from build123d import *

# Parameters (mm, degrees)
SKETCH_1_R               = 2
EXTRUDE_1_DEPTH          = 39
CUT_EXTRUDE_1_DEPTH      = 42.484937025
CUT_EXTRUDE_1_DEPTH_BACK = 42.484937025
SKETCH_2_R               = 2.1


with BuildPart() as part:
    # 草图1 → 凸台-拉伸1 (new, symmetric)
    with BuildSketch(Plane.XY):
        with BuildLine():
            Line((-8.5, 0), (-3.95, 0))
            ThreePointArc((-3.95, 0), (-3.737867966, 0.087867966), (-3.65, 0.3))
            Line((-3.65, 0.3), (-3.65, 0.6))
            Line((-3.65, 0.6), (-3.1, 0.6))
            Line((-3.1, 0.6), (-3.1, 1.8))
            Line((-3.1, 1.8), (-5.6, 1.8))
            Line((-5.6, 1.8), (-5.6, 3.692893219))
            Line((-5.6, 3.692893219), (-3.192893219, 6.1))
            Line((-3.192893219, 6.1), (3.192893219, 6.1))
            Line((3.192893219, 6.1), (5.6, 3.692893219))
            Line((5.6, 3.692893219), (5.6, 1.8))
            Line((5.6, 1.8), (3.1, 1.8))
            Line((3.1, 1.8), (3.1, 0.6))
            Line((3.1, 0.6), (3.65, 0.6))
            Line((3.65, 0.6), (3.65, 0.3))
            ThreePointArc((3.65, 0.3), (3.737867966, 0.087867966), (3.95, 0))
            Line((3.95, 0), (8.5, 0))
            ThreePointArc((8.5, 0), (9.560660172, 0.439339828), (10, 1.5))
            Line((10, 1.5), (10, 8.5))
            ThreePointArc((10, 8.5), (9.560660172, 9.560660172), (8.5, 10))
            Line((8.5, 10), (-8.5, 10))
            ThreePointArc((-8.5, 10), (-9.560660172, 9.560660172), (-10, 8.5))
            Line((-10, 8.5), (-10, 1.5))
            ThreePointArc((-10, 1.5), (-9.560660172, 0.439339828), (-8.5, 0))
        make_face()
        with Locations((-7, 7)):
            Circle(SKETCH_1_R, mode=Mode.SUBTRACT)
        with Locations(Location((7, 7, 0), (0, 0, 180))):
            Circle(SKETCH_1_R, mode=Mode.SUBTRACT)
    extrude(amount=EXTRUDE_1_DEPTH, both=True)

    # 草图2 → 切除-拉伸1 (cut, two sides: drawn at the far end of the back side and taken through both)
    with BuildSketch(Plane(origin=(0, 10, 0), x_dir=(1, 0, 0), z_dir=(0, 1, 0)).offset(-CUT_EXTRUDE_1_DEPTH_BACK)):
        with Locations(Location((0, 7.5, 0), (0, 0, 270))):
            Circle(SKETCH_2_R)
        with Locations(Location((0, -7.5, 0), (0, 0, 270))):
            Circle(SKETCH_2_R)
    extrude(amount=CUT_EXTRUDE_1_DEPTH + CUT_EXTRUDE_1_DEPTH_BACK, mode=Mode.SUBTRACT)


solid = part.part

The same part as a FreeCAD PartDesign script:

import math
import FreeCAD as App
import Part
import Sketcher
from FreeCAD import Vector
Q = App.Units.Quantity

doc = App.newDocument("Part")
body = doc.addObject("PartDesign::Body", "Body")

sketch1 = body.newObject("Sketcher::SketchObject", "Sketch")
sketch1.AttachmentSupport = (doc.getObject("XY_Plane"), [""])
sketch1.MapMode = "FlatFace"
sketch1.addGeometry(Part.LineSegment(Vector(-8.5, 0, 0), Vector(-3.95, 0, 0)), False)
sketch1.addGeometry(Part.ArcOfCircle(Part.Circle(Vector(-3.95, 0.3, 0), Vector(0, 0, 1), 0.3), math.radians(-90), math.radians(0)), False)
sketch1.addGeometry(Part.LineSegment(Vector(-3.65, 0.3, 0), Vector(-3.65, 0.6, 0)), False)
sketch1.addGeometry(Part.LineSegment(Vector(-3.65, 0.6, 0), Vector(-3.1, 0.6, 0)), False)
sketch1.addGeometry(Part.LineSegment(Vector(-3.1, 0.6, 0), Vector(-3.1, 1.8, 0)), False)
sketch1.addGeometry(Part.LineSegment(Vector(-3.1, 1.8, 0), Vector(-5.6, 1.8, 0)), False)
sketch1.addGeometry(Part.LineSegment(Vector(-5.6, 1.8, 0), Vector(-5.6, 3.692893, 0)), False)
sketch1.addGeometry(Part.LineSegment(Vector(-5.6, 3.692893, 0), Vector(-3.192893, 6.1, 0)), False)
sketch1.addGeometry(Part.LineSegment(Vector(-3.192893, 6.1, 0), Vector(3.192893, 6.1, 0)), False)
sketch1.addGeometry(Part.LineSegment(Vector(3.192893, 6.1, 0), Vector(5.6, 3.692893, 0)), False)
sketch1.addGeometry(Part.LineSegment(Vector(5.6, 3.692893, 0), Vector(5.6, 1.8, 0)), False)
sketch1.addGeometry(Part.LineSegment(Vector(5.6, 1.8, 0), Vector(3.1, 1.8, 0)), False)
sketch1.addGeometry(Part.LineSegment(Vector(3.1, 1.8, 0), Vector(3.1, 0.6, 0)), False)
sketch1.addGeometry(Part.LineSegment(Vector(3.1, 0.6, 0), Vector(3.65, 0.6, 0)), False)
sketch1.addGeometry(Part.LineSegment(Vector(3.65, 0.6, 0), Vector(3.65, 0.3, 0)), False)
sketch1.addGeometry(Part.ArcOfCircle(Part.Circle(Vector(3.95, 0.3, 0), Vector(0, 0, 1), 0.3), math.radians(-180), math.radians(-90)), False)
sketch1.addGeometry(Part.LineSegment(Vector(3.95, 0, 0), Vector(8.5, 0, 0)), False)
sketch1.addGeometry(Part.ArcOfCircle(Part.Circle(Vector(8.5, 1.5, 0), Vector(0, 0, 1), 1.5), math.radians(-90), math.radians(0)), False)
sketch1.addGeometry(Part.LineSegment(Vector(10, 1.5, 0), Vector(10, 8.5, 0)), False)
sketch1.addGeometry(Part.ArcOfCircle(Part.Circle(Vector(8.5, 8.5, 0), Vector(0, 0, 1), 1.5), math.radians(0), math.radians(90)), False)
sketch1.addGeometry(Part.LineSegment(Vector(8.5, 10, 0), Vector(-8.5, 10, 0)), False)
sketch1.addGeometry(Part.ArcOfCircle(Part.Circle(Vector(-8.5, 8.5, 0), Vector(0, 0, 1), 1.5), math.radians(90), math.radians(180)), False)
sketch1.addGeometry(Part.LineSegment(Vector(-10, 8.5, 0), Vector(-10, 1.5, 0)), False)
sketch1.addGeometry(Part.ArcOfCircle(Part.Circle(Vector(-8.5, 1.5, 0), Vector(0, 0, 1), 1.5), math.radians(180), math.radians(270)), False)
sketch1.addGeometry(Part.Circle(Vector(-7, 7, 0), Vector(0, 0, 1), 2), False)
sketch1.addGeometry(Part.Circle(Vector(7, 7, 0), Vector(0, 0, 1), 2), False)
sketch1.addConstraint(Sketcher.Constraint("Tangent", 0, 2, 1, 1))
sketch1.addConstraint(Sketcher.Constraint("Tangent", 1, 2, 2, 1))
sketch1.addConstraint(Sketcher.Constraint("Coincident", 2, 2, 3, 1))
sketch1.addConstraint(Sketcher.Constraint("Coincident", 3, 2, 4, 1))
sketch1.addConstraint(Sketcher.Constraint("Coincident", 4, 2, 5, 1))
sketch1.addConstraint(Sketcher.Constraint("Coincident", 5, 2, 6, 1))
sketch1.addConstraint(Sketcher.Constraint("Coincident", 6, 2, 7, 1))
sketch1.addConstraint(Sketcher.Constraint("Coincident", 7, 2, 8, 1))
sketch1.addConstraint(Sketcher.Constraint("Coincident", 8, 2, 9, 1))
sketch1.addConstraint(Sketcher.Constraint("Coincident", 9, 2, 10, 1))
sketch1.addConstraint(Sketcher.Constraint("Coincident", 10, 2, 11, 1))
sketch1.addConstraint(Sketcher.Constraint("Coincident", 11, 2, 12, 1))
sketch1.addConstraint(Sketcher.Constraint("Coincident", 12, 2, 13, 1))
sketch1.addConstraint(Sketcher.Constraint("Coincident", 13, 2, 14, 1))
sketch1.addConstraint(Sketcher.Constraint("Tangent", 14, 2, 15, 1))
sketch1.addConstraint(Sketcher.Constraint("Tangent", 15, 2, 16, 1))
sketch1.addConstraint(Sketcher.Constraint("Tangent", 16, 2, 17, 1))
sketch1.addConstraint(Sketcher.Constraint("Tangent", 17, 2, 18, 1))
sketch1.addConstraint(Sketcher.Constraint("Tangent", 18, 2, 19, 1))
sketch1.addConstraint(Sketcher.Constraint("Tangent", 19, 2, 20, 1))
sketch1.addConstraint(Sketcher.Constraint("Tangent", 20, 2, 21, 1))
sketch1.addConstraint(Sketcher.Constraint("Tangent", 21, 2, 22, 1))
sketch1.addConstraint(Sketcher.Constraint("Tangent", 22, 2, 23, 1))
sketch1.addConstraint(Sketcher.Constraint("Tangent", 23, 2, 0, 1))
sketch1.addConstraint(Sketcher.Constraint("Horizontal", 0))
sketch1.addConstraint(Sketcher.Constraint("Vertical", 2))
sketch1.addConstraint(Sketcher.Constraint("Horizontal", 3))
sketch1.addConstraint(Sketcher.Constraint("Vertical", 4))
sketch1.addConstraint(Sketcher.Constraint("Horizontal", 5))
sketch1.addConstraint(Sketcher.Constraint("Vertical", 6))
sketch1.addConstraint(Sketcher.Constraint("Horizontal", 8))
sketch1.addConstraint(Sketcher.Constraint("Vertical", 10))
sketch1.addConstraint(Sketcher.Constraint("Horizontal", 11))
sketch1.addConstraint(Sketcher.Constraint("Vertical", 12))
sketch1.addConstraint(Sketcher.Constraint("Horizontal", 13))
sketch1.addConstraint(Sketcher.Constraint("Vertical", 14))
sketch1.addConstraint(Sketcher.Constraint("Horizontal", 16))
sketch1.addConstraint(Sketcher.Constraint("Vertical", 18))
sketch1.addConstraint(Sketcher.Constraint("Horizontal", 20))
sketch1.addConstraint(Sketcher.Constraint("Vertical", 22))
sketch1.addConstraint(Sketcher.Constraint("Equal", 1, 15))
sketch1.addConstraint(Sketcher.Constraint("Equal", 17, 19))
sketch1.addConstraint(Sketcher.Constraint("Equal", 19, 21))
sketch1.addConstraint(Sketcher.Constraint("Equal", 21, 23))
sketch1.addConstraint(Sketcher.Constraint("Equal", 24, 25))
sketch1.addConstraint(Sketcher.Constraint("Symmetric", 0, 2, 15, 2, -1, 1))
sketch1.addConstraint(Sketcher.Constraint("Symmetric", 17, 3, 23, 3, -2))
sketch1.addConstraint(Sketcher.Constraint("Symmetric", 24, 3, 25, 3, -2))
sketch1.addConstraint(Sketcher.Constraint("Symmetric", 6, 2, 9, 2, -2))
sketch1.addConstraint(Sketcher.Constraint("Symmetric", 4, 2, 11, 2, -2))
sketch1.addConstraint(Sketcher.Constraint("Perpendicular", 7, 9))
sketch1.addConstraint(Sketcher.Constraint("Horizontal", 3, 2, 12, 2))
sketch1.addConstraint(Sketcher.Constraint("Equal", 7, 9))
sketch1.addConstraint(Sketcher.Constraint("Diameter", 24, Q("4 mm")))
sketch1.addConstraint(Sketcher.Constraint("Radius", 1, Q("0.3 mm")))
sketch1.addConstraint(Sketcher.Constraint("Radius", 17, Q("1.5 mm")))
sketch1.addConstraint(Sketcher.Constraint("DistanceX", 20, 2, 20, 1, Q("17 mm")))
sketch1.addConstraint(Sketcher.Constraint("DistanceY", 18, 1, 18, 2, Q("7 mm")))
sketch1.addConstraint(Sketcher.Constraint("DistanceX", 5, 2, 5, 1, Q("2.5 mm")))
sketch1.addConstraint(Sketcher.Constraint("DistanceY", 2, 1, 2, 2, Q("0.3 mm")))
sketch1.addConstraint(Sketcher.Constraint("DistanceY", 4, 1, 4, 2, Q("1.2 mm")))
sketch1.addConstraint(Sketcher.Constraint("DistanceX", 24, 3, -1, 1, Q("7 mm")))
sketch1.addConstraint(Sketcher.Constraint("DistanceY", -1, 1, 24, 3, Q("7 mm")))
sketch1.addConstraint(Sketcher.Constraint("DistanceX", 0, 1, 0, 2, Q("4.55 mm")))
sketch1.addConstraint(Sketcher.Constraint("DistanceX", 3, 1, 3, 2, Q("0.55 mm")))
sketch1.addConstraint(Sketcher.Constraint("DistanceY", -1, 1, 7, 2, Q("6.1 mm")))
sketch1.addConstraint(Sketcher.Constraint("DistanceX", 8, 1, 8, 2, Q("6.385786 mm")))
pad1 = body.newObject("PartDesign::Pad", "Pad")
pad1.Profile = sketch1
pad1.Length = 78
pad1.Midplane = True

sketch2 = body.newObject("Sketcher::SketchObject", "Sketch001")
sketch2.AttachmentSupport = (doc.getObject("XZ_Plane"), [""])
sketch2.MapMode = "FlatFace"
sketch2.AttachmentOffset = App.Placement(Vector(0, 0, -10), App.Rotation())
sketch2.addGeometry(Part.Circle(Vector(0, -7.5, 0), Vector(0, 0, 1), 2.1), False)
sketch2.addGeometry(Part.Circle(Vector(0, 7.5, 0), Vector(0, 0, 1), 2.1), False)
sketch2.addConstraint(Sketcher.Constraint("Equal", 0, 1))
sketch2.addConstraint(Sketcher.Constraint("Symmetric", 0, 3, 1, 3, -1, 1))
sketch2.addConstraint(Sketcher.Constraint("PointOnObject", 0, 3, -2))
sketch2.addConstraint(Sketcher.Constraint("Diameter", 0, Q("4.2 mm")))
sketch2.addConstraint(Sketcher.Constraint("DistanceY", 0, 3, 1, 3, Q("15 mm")))
pocket1 = body.newObject("PartDesign::Pocket", "Pocket")
pocket1.Profile = sketch2
pocket1.Type = "ThroughAll"
pocket1.Midplane = True

doc.recompute()
